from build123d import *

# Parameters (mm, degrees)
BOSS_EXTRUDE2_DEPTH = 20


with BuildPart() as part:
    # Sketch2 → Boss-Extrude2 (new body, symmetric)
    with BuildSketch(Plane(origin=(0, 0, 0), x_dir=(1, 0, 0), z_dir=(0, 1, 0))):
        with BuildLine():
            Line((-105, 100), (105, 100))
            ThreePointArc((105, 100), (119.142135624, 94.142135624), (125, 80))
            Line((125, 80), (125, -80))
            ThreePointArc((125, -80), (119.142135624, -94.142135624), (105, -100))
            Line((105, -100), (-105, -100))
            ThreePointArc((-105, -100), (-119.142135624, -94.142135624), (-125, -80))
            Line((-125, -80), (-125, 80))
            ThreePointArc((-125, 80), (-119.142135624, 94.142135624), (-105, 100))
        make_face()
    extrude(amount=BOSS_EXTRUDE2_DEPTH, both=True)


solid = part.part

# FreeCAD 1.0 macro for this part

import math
import FreeCAD as App
import Part
import Sketcher

doc = App.newDocument("Part")
body = doc.addObject("PartDesign::Body", "Body")

sketch1 = doc.addObject("Sketcher::SketchObject", "Sketch")
body.addObject(sketch1)
sketch1.AttachmentSupport = (doc.XZ_Plane, [""])
sketch1.MapMode = "FlatFace"
sketch1.addGeometry([
    Part.LineSegment(App.Vector(105, -100, 0), App.Vector(-105, -100, 0)),
    Part.ArcOfCircle(Part.Circle(App.Vector(-105, -80, 0), App.Vector(0, 0, 1), 20), math.radians(180), math.radians(270)),
    Part.LineSegment(App.Vector(-125, -80, 0), App.Vector(-125, 80, 0)),
    Part.ArcOfCircle(Part.Circle(App.Vector(-105, 80, 0), App.Vector(0, 0, 1), 20), math.radians(90), math.radians(180)),
    Part.LineSegment(App.Vector(-105, 100, 0), App.Vector(105, 100, 0)),
    Part.ArcOfCircle(Part.Circle(App.Vector(105, 80, 0), App.Vector(0, 0, 1), 20), math.radians(0), math.radians(90)),
    Part.LineSegment(App.Vector(125, 80, 0), App.Vector(125, -80, 0)),
    Part.ArcOfCircle(Part.Circle(App.Vector(105, -80, 0), App.Vector(0, 0, 1), 20), math.radians(-90), math.radians(0)),
], False)
sketch1.addConstraint([
    Sketcher.Constraint("Tangent", 0, 2, 1, 2),
    Sketcher.Constraint("Tangent", 1, 1, 2, 1),
    Sketcher.Constraint("Tangent", 2, 2, 3, 2),
    Sketcher.Constraint("Tangent", 3, 1, 4, 1),
    Sketcher.Constraint("Tangent", 4, 2, 5, 2),
    Sketcher.Constraint("Tangent", 5, 1, 6, 1),
    Sketcher.Constraint("Tangent", 6, 2, 7, 2),
    Sketcher.Constraint("Tangent", 7, 1, 0, 1),
    Sketcher.Constraint("Horizontal", 0),
    Sketcher.Constraint("Vertical", 2),
    Sketcher.Constraint("Horizontal", 4),
    Sketcher.Constraint("Vertical", 6),
    Sketcher.Constraint("Equal", 1, 3),
    Sketcher.Constraint("Equal", 3, 5),
    Sketcher.Constraint("Equal", 5, 7),
    Sketcher.Constraint("Symmetric", 1, 3, 5, 3, -1, 1),
    Sketcher.Constraint("Radius", 1, 20.0),
    Sketcher.Constraint("DistanceX", 0, 2, 0, 1, 210.0),
    Sketcher.Constraint("DistanceY", 2, 1, 2, 2, 160.0),
])
pad1 = doc.addObject("PartDesign::Pad", "Pad")
body.addObject(pad1)
pad1.Profile = sketch1
pad1.Length = 40
pad1.Midplane = True

doc.recompute()
